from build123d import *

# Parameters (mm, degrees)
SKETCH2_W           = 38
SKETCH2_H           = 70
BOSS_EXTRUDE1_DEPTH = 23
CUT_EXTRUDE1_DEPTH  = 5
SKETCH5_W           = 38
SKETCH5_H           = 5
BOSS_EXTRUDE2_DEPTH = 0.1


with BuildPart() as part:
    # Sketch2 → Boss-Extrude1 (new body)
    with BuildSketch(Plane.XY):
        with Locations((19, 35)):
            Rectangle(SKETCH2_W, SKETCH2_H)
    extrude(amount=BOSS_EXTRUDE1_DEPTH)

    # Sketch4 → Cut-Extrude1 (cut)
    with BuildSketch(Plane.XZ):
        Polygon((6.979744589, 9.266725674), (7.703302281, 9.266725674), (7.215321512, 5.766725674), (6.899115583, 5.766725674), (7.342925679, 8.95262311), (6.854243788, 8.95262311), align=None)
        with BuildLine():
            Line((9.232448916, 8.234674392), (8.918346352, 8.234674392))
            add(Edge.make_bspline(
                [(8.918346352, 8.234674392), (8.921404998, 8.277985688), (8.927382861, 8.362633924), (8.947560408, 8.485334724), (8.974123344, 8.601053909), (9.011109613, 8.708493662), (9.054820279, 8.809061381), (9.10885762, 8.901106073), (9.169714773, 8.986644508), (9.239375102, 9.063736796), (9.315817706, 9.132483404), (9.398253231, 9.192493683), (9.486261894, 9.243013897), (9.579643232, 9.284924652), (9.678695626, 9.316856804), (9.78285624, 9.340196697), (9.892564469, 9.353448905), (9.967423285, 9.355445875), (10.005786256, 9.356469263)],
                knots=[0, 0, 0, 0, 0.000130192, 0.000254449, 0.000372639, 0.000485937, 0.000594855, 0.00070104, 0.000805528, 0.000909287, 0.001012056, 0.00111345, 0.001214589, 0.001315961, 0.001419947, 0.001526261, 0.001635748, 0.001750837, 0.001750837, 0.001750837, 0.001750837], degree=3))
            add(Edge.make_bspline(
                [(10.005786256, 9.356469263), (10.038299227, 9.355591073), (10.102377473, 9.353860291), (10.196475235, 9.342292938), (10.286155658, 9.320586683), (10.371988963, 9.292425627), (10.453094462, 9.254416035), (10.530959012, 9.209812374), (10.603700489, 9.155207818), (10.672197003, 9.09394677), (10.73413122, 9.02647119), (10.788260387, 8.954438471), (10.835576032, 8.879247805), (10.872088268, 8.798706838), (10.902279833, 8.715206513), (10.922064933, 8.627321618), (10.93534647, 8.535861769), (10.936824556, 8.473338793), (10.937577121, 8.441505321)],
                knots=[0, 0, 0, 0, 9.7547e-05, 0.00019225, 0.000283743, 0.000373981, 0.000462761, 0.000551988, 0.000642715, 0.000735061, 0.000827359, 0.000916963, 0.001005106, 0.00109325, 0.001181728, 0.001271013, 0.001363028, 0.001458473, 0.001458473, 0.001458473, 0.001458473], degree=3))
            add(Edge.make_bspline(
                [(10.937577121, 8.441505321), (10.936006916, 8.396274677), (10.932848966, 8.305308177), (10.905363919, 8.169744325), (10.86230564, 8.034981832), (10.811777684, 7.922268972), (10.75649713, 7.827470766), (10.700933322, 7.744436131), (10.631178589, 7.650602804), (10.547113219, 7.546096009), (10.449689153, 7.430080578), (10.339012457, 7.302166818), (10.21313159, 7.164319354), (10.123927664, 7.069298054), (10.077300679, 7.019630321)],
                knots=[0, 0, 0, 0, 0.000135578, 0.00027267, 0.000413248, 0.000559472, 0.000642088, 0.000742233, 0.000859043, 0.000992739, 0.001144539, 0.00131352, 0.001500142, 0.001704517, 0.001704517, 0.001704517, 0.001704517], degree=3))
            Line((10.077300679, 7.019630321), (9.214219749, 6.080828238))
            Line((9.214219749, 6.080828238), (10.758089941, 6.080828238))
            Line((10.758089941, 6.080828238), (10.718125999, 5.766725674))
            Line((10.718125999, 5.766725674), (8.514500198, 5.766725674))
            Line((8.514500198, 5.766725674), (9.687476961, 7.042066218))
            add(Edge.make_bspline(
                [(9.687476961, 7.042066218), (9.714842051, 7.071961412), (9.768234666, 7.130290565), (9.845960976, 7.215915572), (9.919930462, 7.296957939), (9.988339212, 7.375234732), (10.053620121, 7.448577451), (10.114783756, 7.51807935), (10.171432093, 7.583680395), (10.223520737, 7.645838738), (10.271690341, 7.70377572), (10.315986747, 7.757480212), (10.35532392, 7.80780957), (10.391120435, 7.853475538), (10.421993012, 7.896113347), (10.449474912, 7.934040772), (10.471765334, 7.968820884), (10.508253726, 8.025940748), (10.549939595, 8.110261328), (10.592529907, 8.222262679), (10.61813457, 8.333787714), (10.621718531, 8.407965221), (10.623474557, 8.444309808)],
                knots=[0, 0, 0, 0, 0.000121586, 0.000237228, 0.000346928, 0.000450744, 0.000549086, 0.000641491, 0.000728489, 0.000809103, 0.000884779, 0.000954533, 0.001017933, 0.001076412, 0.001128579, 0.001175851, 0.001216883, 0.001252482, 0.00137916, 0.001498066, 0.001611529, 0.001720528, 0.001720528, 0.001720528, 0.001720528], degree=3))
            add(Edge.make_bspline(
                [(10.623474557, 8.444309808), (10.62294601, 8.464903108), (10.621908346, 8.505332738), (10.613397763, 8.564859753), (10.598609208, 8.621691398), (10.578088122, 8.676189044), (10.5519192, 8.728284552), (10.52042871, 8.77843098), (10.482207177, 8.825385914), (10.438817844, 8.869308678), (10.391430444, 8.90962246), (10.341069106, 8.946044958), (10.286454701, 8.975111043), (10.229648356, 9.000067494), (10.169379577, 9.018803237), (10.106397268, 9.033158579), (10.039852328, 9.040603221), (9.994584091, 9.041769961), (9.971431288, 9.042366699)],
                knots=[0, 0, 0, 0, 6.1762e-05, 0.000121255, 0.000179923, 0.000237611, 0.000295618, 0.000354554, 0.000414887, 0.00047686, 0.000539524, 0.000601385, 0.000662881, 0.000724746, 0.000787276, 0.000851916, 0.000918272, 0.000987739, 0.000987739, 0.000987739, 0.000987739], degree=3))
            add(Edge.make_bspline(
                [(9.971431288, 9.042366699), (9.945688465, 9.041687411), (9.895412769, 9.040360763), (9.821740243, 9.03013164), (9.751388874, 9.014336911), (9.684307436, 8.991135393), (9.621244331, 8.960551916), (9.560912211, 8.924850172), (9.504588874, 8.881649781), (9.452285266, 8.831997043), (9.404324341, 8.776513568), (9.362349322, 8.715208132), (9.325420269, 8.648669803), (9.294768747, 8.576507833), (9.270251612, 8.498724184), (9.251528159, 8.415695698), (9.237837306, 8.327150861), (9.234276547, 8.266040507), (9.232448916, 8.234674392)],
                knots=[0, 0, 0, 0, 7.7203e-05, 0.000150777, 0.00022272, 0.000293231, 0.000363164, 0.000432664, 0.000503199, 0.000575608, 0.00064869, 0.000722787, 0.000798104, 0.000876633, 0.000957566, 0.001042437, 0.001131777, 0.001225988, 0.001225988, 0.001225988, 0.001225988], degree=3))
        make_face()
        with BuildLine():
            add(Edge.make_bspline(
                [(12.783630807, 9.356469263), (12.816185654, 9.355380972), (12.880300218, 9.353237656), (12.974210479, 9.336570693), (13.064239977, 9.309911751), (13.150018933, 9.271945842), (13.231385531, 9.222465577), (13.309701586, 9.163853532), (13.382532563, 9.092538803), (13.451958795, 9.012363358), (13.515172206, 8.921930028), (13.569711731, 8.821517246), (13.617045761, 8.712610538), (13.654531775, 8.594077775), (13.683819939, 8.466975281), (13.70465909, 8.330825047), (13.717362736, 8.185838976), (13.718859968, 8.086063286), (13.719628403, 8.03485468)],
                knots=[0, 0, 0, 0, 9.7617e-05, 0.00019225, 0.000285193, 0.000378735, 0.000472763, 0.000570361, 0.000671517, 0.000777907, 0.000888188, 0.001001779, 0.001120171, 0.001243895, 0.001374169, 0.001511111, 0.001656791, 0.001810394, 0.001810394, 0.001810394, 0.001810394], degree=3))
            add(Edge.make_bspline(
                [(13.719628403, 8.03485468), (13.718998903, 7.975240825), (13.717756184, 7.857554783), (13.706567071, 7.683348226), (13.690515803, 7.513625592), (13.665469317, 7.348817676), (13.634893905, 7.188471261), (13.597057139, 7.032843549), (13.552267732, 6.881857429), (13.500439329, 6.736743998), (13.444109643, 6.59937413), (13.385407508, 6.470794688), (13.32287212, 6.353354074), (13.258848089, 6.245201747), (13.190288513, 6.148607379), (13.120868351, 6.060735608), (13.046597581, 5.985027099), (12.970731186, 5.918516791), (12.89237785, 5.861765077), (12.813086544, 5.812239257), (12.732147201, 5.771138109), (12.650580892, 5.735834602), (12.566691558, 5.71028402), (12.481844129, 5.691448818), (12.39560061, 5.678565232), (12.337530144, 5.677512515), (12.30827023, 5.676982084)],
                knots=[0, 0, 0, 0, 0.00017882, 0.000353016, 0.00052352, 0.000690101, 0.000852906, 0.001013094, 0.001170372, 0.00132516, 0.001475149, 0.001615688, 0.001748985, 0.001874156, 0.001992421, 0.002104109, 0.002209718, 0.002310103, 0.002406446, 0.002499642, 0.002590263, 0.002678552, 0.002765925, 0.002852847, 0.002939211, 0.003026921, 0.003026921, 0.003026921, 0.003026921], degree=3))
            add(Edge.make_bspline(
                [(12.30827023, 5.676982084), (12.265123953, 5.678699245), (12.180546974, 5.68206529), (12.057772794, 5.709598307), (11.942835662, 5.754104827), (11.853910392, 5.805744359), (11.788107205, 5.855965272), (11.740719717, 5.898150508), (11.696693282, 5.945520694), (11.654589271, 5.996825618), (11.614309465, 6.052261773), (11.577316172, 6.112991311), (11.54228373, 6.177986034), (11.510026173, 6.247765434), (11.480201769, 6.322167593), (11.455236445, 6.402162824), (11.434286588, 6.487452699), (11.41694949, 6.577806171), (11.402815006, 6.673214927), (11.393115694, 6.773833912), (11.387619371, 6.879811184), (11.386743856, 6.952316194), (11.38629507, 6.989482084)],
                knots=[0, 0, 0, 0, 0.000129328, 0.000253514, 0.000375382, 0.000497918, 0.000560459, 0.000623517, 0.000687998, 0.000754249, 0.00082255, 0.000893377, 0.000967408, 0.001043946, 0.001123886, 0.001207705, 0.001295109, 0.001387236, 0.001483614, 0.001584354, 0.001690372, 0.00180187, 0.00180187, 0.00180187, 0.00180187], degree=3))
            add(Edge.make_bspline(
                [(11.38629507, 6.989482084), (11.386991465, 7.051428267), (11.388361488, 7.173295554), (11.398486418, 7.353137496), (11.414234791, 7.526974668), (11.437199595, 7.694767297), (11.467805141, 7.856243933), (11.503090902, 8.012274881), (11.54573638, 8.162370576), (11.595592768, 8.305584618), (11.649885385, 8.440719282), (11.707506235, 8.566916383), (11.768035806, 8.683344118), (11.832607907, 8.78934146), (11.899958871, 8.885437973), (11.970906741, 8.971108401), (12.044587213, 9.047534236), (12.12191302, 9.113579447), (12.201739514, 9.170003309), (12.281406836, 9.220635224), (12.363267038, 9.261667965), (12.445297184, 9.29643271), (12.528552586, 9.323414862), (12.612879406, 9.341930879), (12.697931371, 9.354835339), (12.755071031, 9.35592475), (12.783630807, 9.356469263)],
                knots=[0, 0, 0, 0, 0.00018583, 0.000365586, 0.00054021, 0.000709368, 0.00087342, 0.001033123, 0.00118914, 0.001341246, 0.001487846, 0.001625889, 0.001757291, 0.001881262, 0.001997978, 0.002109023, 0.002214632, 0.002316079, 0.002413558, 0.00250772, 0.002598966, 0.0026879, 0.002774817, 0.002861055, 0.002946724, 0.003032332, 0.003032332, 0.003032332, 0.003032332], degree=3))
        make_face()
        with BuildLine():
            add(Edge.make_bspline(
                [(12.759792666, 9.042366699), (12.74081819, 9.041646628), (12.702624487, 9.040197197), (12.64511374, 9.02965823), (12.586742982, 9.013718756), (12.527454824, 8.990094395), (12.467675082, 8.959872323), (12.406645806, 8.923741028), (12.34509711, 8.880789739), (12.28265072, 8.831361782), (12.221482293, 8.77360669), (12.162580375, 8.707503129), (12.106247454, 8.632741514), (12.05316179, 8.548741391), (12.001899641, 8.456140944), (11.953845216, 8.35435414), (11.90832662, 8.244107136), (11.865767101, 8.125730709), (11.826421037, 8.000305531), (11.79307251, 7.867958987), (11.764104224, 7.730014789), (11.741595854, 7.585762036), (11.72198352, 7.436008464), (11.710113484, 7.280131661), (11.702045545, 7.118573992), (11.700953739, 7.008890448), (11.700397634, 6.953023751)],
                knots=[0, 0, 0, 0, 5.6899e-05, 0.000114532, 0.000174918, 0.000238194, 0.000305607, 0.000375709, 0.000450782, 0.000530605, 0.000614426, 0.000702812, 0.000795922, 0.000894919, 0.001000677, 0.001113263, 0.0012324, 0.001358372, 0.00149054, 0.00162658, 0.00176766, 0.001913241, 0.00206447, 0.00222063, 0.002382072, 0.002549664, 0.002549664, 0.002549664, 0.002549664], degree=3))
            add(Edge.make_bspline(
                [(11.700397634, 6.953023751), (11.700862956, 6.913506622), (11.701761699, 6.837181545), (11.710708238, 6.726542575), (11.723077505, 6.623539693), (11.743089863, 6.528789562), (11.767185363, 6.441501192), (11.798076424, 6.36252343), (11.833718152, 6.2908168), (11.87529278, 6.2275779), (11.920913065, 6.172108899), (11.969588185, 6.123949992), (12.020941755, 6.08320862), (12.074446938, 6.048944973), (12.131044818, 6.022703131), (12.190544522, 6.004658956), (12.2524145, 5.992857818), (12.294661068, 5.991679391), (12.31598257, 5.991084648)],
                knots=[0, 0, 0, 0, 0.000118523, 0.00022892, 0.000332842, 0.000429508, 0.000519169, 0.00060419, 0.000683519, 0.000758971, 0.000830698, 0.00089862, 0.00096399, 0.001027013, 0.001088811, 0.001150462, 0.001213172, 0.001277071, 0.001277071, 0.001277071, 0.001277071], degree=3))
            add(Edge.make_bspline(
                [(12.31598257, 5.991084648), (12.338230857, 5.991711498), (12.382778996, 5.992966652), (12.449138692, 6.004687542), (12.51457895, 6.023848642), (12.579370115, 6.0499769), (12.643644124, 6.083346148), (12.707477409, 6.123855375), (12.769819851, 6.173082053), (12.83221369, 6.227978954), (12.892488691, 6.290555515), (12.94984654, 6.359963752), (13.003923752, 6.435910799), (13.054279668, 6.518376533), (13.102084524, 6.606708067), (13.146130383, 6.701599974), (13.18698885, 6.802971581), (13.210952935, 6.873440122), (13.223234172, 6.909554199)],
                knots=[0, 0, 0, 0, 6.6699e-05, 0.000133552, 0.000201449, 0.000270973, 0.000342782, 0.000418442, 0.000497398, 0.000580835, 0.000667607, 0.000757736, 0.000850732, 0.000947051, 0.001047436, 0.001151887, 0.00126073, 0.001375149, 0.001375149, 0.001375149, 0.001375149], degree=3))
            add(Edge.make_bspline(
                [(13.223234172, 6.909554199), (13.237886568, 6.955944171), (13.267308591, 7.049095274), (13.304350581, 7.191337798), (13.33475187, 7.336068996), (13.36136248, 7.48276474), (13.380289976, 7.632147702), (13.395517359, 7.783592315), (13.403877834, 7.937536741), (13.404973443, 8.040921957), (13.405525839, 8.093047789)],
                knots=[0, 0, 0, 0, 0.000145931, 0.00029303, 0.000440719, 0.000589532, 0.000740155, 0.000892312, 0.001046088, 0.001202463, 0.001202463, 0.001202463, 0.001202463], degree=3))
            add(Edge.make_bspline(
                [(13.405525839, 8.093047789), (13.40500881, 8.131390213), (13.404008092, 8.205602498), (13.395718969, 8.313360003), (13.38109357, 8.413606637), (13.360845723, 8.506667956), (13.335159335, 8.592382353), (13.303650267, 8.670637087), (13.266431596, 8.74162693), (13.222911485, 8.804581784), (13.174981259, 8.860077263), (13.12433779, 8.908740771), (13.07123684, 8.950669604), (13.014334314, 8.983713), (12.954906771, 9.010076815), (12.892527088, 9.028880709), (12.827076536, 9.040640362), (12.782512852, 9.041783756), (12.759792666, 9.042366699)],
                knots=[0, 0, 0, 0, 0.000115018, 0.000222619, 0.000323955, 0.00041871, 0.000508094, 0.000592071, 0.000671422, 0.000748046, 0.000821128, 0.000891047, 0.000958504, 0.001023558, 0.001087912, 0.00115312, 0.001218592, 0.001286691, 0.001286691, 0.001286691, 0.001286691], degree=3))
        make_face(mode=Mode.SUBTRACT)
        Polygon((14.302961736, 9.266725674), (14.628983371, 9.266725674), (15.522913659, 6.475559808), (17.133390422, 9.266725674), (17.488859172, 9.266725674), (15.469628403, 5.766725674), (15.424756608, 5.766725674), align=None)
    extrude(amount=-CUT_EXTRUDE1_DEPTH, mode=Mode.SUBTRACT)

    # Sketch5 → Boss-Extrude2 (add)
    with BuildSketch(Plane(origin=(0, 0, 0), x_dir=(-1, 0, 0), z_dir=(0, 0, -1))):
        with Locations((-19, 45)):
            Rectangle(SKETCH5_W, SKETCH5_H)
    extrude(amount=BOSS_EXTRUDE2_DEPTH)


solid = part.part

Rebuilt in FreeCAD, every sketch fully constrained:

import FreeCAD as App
import Part
import Sketcher

V = App.Vector
Q = App.Units.Quantity

doc = App.newDocument("Part")
body = doc.addObject("PartDesign::Body", "Body")

# Sketch on XY plane
sketch1 = body.newObject("Sketcher::SketchObject", "Sketch")
sketch1.AttachmentSupport = (doc.getObject("XY_Plane"), [""])
sketch1.MapMode = "FlatFace"
sketch1.addGeometry(Part.LineSegment(V(0, 70, 0), V(0, 0, 0)), False)
sketch1.addGeometry(Part.LineSegment(V(0, 0, 0), V(38, 0, 0)), False)
sketch1.addGeometry(Part.LineSegment(V(38, 0, 0), V(38, 70, 0)), False)
sketch1.addGeometry(Part.LineSegment(V(38, 70, 0), V(0, 70, 0)), False)
sketch1.addConstraint(Sketcher.Constraint("Coincident", 0, 2, 1, 1))
sketch1.addConstraint(Sketcher.Constraint("Coincident", 1, 2, 2, 1))
sketch1.addConstraint(Sketcher.Constraint("Coincident", 2, 2, 3, 1))
sketch1.addConstraint(Sketcher.Constraint("Coincident", 3, 2, 0, 1))
sketch1.addConstraint(Sketcher.Constraint("Vertical", 0))
sketch1.addConstraint(Sketcher.Constraint("Horizontal", 1))
sketch1.addConstraint(Sketcher.Constraint("Vertical", 2))
sketch1.addConstraint(Sketcher.Constraint("Horizontal", 3))
sketch1.addConstraint(Sketcher.Constraint("Coincident", 0, 2, -1, 1))
sketch1.addConstraint(Sketcher.Constraint("DistanceX", 1, 1, 1, 2, Q("38 mm")))
sketch1.addConstraint(Sketcher.Constraint("DistanceY", 0, 2, 0, 1, Q("70 mm")))
pad1 = body.newObject("PartDesign::Pad", "Pad")
pad1.Profile = sketch1
pad1.Length = 23

# Sketch on XZ plane
sketch2 = body.newObject("Sketcher::SketchObject", "Sketch001")
sketch2.AttachmentSupport = (doc.getObject("XZ_Plane"), [""])
sketch2.MapMode = "FlatFace"
sketch2.addGeometry(Part.LineSegment(V(7.703302, 9.266726, 0), V(6.979745, 9.266726, 0)), False)
sketch2.addGeometry(Part.LineSegment(V(6.979745, 9.266726, 0), V(6.854244, 8.952623, 0)), False)
sketch2.addGeometry(Part.LineSegment(V(6.854244, 8.952623, 0), V(7.342926, 8.952623, 0)), False)
sketch2.addGeometry(Part.LineSegment(V(7.342926, 8.952623, 0), V(6.899116, 5.766726, 0)), False)
sketch2.addGeometry(Part.LineSegment(V(6.899116, 5.766726, 0), V(7.215322, 5.766726, 0)), False)
sketch2.addGeometry(Part.LineSegment(V(7.215322, 5.766726, 0), V(7.703302, 9.266726, 0)), False)
sketch2.addGeometry(Part.LineSegment(V(8.918346, 8.234674, 0), V(9.232449, 8.234674, 0)), False)
sketch2.addGeometry(Part.BSplineCurve([V(9.971431, 9.042367, 0), V(9.945688, 9.041687, 0), V(9.895413, 9.040361, 0), V(9.82174, 9.030132, 0), V(9.751389, 9.014337, 0), V(9.684307, 8.991135, 0), V(9.621244, 8.960552, 0), V(9.560912, 8.92485, 0), V(9.504589, 8.88165, 0), V(9.452285, 8.831997, 0), V(9.404324, 8.776514, 0), V(9.362349, 8.715208, 0), V(9.32542, 8.64867, 0), V(9.294769, 8.576508, 0), V(9.270252, 8.498724, 0), V(9.251528, 8.415696, 0), V(9.237837, 8.327151, 0), V(9.234277, 8.266041, 0), V(9.232449, 8.234674, 0)], [4, 1, 1, 1, 1, 1, 1, 1, 1, 1, 1, 1, 1, 1, 1, 1, 4], [0, 0.000077203, 0.000150777, 0.00022272, 0.000293231, 0.000363164, 0.000432664, 0.000503199, 0.000575608, 0.00064869, 0.000722787, 0.000798104, 0.000876633, 0.000957566, 0.001042437, 0.001131777, 0.001225988], False, 3, [1, 1, 1, 1, 1, 1, 1, 1, 1, 1, 1, 1, 1, 1, 1, 1, 1, 1, 1], False), False)
sketch2.addGeometry(Part.BSplineCurve([V(10.623475, 8.44431, 0), V(10.622946, 8.464903, 0), V(10.621908, 8.505333, 0), V(10.613398, 8.56486, 0), V(10.598609, 8.621691, 0), V(10.578088, 8.676189, 0), V(10.551919, 8.728285, 0), V(10.520429, 8.778431, 0), V(10.482207, 8.825386, 0), V(10.438818, 8.869309, 0), V(10.39143, 8.909622, 0), V(10.341069, 8.946045, 0), V(10.286455, 8.975111, 0), V(10.229648, 9.000067, 0), V(10.16938, 9.018803, 0), V(10.106397, 9.033159, 0), V(10.039852, 9.040603, 0), V(9.994584, 9.04177, 0), V(9.971431, 9.042367, 0)], [4, 1, 1, 1, 1, 1, 1, 1, 1, 1, 1, 1, 1, 1, 1, 1, 4], [0, 0.000061762, 0.000121255, 0.000179923, 0.000237611, 0.000295618, 0.000354554, 0.000414887, 0.00047686, 0.000539524, 0.000601385, 0.000662881, 0.000724746, 0.000787276, 0.000851916, 0.000918272, 0.000987739], False, 3, [1, 1, 1, 1, 1, 1, 1, 1, 1, 1, 1, 1, 1, 1, 1, 1, 1, 1, 1], False), False)
sketch2.addGeometry(Part.BSplineCurve([V(9.687477, 7.042066, 0), V(9.714842, 7.071961, 0), V(9.768235, 7.130291, 0), V(9.845961, 7.215916, 0), V(9.91993, 7.296958, 0), V(9.988339, 7.375235, 0), V(10.05362, 7.448577, 0), V(10.114784, 7.518079, 0), V(10.171432, 7.58368, 0), V(10.223521, 7.645839, 0), V(10.27169, 7.703776, 0), V(10.315987, 7.75748, 0), V(10.355324, 7.80781, 0), V(10.39112, 7.853476, 0), V(10.421993, 7.896113, 0), V(10.449475, 7.934041, 0), V(10.471765, 7.968821, 0), V(10.508254, 8.025941, 0), V(10.54994, 8.110261, 0), V(10.59253, 8.222263, 0), V(10.618135, 8.333788, 0), V(10.621719, 8.407965, 0), V(10.623475, 8.44431, 0)], [4, 1, 1, 1, 1, 1, 1, 1, 1, 1, 1, 1, 1, 1, 1, 1, 1, 1, 1, 1, 4], [0, 0.000121586, 0.000237228, 0.000346928, 0.000450744, 0.000549086, 0.000641491, 0.000728489, 0.000809103, 0.000884779, 0.000954533, 0.001017933, 0.001076412, 0.001128579, 0.001175851, 0.001216883, 0.001252482, 0.00137916, 0.001498066, 0.001611529, 0.001720528], False, 3, [1, 1, 1, 1, 1, 1, 1, 1, 1, 1, 1, 1, 1, 1, 1, 1, 1, 1, 1, 1, 1, 1, 1], False), False)
sketch2.addGeometry(Part.LineSegment(V(9.687477, 7.042066, 0), V(8.5145, 5.766726, 0)), False)
sketch2.addGeometry(Part.LineSegment(V(8.5145, 5.766726, 0), V(10.718126, 5.766726, 0)), False)
sketch2.addGeometry(Part.LineSegment(V(10.718126, 5.766726, 0), V(10.75809, 6.080828, 0)), False)
sketch2.addGeometry(Part.LineSegment(V(10.75809, 6.080828, 0), V(9.21422, 6.080828, 0)), False)
sketch2.addGeometry(Part.LineSegment(V(9.21422, 6.080828, 0), V(10.077301, 7.01963, 0)), False)
sketch2.addGeometry(Part.BSplineCurve([V(10.937577, 8.441505, 0), V(10.936007, 8.396275, 0), V(10.932849, 8.305308, 0), V(10.905364, 8.169744, 0), V(10.862306, 8.034982, 0), V(10.811778, 7.922269, 0), V(10.756497, 7.827471, 0), V(10.700933, 7.744436, 0), V(10.631179, 7.650603, 0), V(10.547113, 7.546096, 0), V(10.449689, 7.430081, 0), V(10.339012, 7.302167, 0), V(10.213132, 7.164319, 0), V(10.123928, 7.069298, 0), V(10.077301, 7.01963, 0)], [4, 1, 1, 1, 1, 1, 1, 1, 1, 1, 1, 1, 4], [0, 0.000135578, 0.00027267, 0.000413248, 0.000559472, 0.000642088, 0.000742233, 0.000859043, 0.000992739, 0.001144539, 0.00131352, 0.001500142, 0.001704517], False, 3, [1, 1, 1, 1, 1, 1, 1, 1, 1, 1, 1, 1, 1, 1, 1], False), False)
sketch2.addGeometry(Part.BSplineCurve([V(10.005786, 9.356469, 0), V(10.038299, 9.355591, 0), V(10.102377, 9.35386, 0), V(10.196475, 9.342293, 0), V(10.286156, 9.320587, 0), V(10.371989, 9.292426, 0), V(10.453094, 9.254416, 0), V(10.530959, 9.209812, 0), V(10.6037, 9.155208, 0), V(10.672197, 9.093947, 0), V(10.734131, 9.026471, 0), V(10.78826, 8.954438, 0), V(10.835576, 8.879248, 0), V(10.872088, 8.798707, 0), V(10.90228, 8.715207, 0), V(10.922065, 8.627322, 0), V(10.935346, 8.535862, 0), V(10.936825, 8.473339, 0), V(10.937577, 8.441505, 0)], [4, 1, 1, 1, 1, 1, 1, 1, 1, 1, 1, 1, 1, 1, 1, 1, 4], [0, 0.000097547, 0.00019225, 0.000283743, 0.000373981, 0.000462761, 0.000551988, 0.000642715, 0.000735061, 0.000827359, 0.000916963, 0.001005106, 0.00109325, 0.001181728, 0.001271013, 0.001363028, 0.001458473], False, 3, [1, 1, 1, 1, 1, 1, 1, 1, 1, 1, 1, 1, 1, 1, 1, 1, 1, 1, 1], False), False)
sketch2.addGeometry(Part.BSplineCurve([V(8.918346, 8.234674, 0), V(8.921405, 8.277986, 0), V(8.927383, 8.362634, 0), V(8.94756, 8.485335, 0), V(8.974123, 8.601054, 0), V(9.01111, 8.708494, 0), V(9.05482, 8.809061, 0), V(9.108858, 8.901106, 0), V(9.169715, 8.986645, 0), V(9.239375, 9.063737, 0), V(9.315818, 9.132483, 0), V(9.398253, 9.192494, 0), V(9.486262, 9.243014, 0), V(9.579643, 9.284925, 0), V(9.678696, 9.316857, 0), V(9.782856, 9.340197, 0), V(9.892564, 9.353449, 0), V(9.967423, 9.355446, 0), V(10.005786, 9.356469, 0)], [4, 1, 1, 1, 1, 1, 1, 1, 1, 1, 1, 1, 1, 1, 1, 1, 4], [0, 0.000130192, 0.000254449, 0.000372639, 0.000485937, 0.000594855, 0.00070104, 0.000805528, 0.000909287, 0.001012056, 0.00111345, 0.001214589, 0.001315961, 0.001419947, 0.001526261, 0.001635748, 0.001750837], False, 3, [1, 1, 1, 1, 1, 1, 1, 1, 1, 1, 1, 1, 1, 1, 1, 1, 1, 1, 1], False), False)
sketch2.addGeometry(Part.BSplineCurve([V(12.783631, 9.356469, 0), V(12.816186, 9.355381, 0), V(12.8803, 9.353238, 0), V(12.97421, 9.336571, 0), V(13.06424, 9.309912, 0), V(13.150019, 9.271946, 0), V(13.231386, 9.222466, 0), V(13.309702, 9.163854, 0), V(13.382533, 9.092539, 0), V(13.451959, 9.012363, 0), V(13.515172, 8.92193, 0), V(13.569712, 8.821517, 0), V(13.617046, 8.712611, 0), V(13.654532, 8.594078, 0), V(13.68382, 8.466975, 0), V(13.704659, 8.330825, 0), V(13.717363, 8.185839, 0), V(13.71886, 8.086063, 0), V(13.719628, 8.034855, 0)], [4, 1, 1, 1, 1, 1, 1, 1, 1, 1, 1, 1, 1, 1, 1, 1, 4], [0, 0.000097617, 0.00019225, 0.000285193, 0.000378735, 0.000472763, 0.000570361, 0.000671517, 0.000777907, 0.000888188, 0.001001779, 0.001120171, 0.001243895, 0.001374169, 0.001511111, 0.001656791, 0.001810394], False, 3, [1, 1, 1, 1, 1, 1, 1, 1, 1, 1, 1, 1, 1, 1, 1, 1, 1, 1, 1], False), False)
sketch2.addGeometry(Part.BSplineCurve([V(11.386295, 6.989482, 0), V(11.386991, 7.051428, 0), V(11.388361, 7.173296, 0), V(11.398486, 7.353137, 0), V(11.414235, 7.526975, 0), V(11.4372, 7.694767, 0), V(11.467805, 7.856244, 0), V(11.503091, 8.012275, 0), V(11.545736, 8.162371, 0), V(11.595593, 8.305585, 0), V(11.649885, 8.440719, 0), V(11.707506, 8.566916, 0), V(11.768036, 8.683344, 0), V(11.832608, 8.789341, 0), V(11.899959, 8.885438, 0), V(11.970907, 8.971108, 0), V(12.044587, 9.047534, 0), V(12.121913, 9.113579, 0), V(12.20174, 9.170003, 0), V(12.281407, 9.220635, 0), V(12.363267, 9.261668, 0), V(12.445297, 9.296433, 0), V(12.528553, 9.323415, 0), V(12.612879, 9.341931, 0), V(12.697931, 9.354835, 0), V(12.755071, 9.355925, 0), V(12.783631, 9.356469, 0)], [4, 1, 1, 1, 1, 1, 1, 1, 1, 1, 1, 1, 1, 1, 1, 1, 1, 1, 1, 1, 1, 1, 1, 1, 4], [0, 0.00018583, 0.000365586, 0.00054021, 0.000709368, 0.00087342, 0.001033123, 0.00118914, 0.001341246, 0.001487846, 0.001625889, 0.001757291, 0.001881262, 0.001997978, 0.002109023, 0.002214632, 0.002316079, 0.002413558, 0.00250772, 0.002598966, 0.0026879, 0.002774817, 0.002861055, 0.002946724, 0.003032332], False, 3, [1, 1, 1, 1, 1, 1, 1, 1, 1, 1, 1, 1, 1, 1, 1, 1, 1, 1, 1, 1, 1, 1, 1, 1, 1, 1, 1], False), False)
sketch2.addGeometry(Part.BSplineCurve([V(12.30827, 5.676982, 0), V(12.265124, 5.678699, 0), V(12.180547, 5.682065, 0), V(12.057773, 5.709598, 0), V(11.942836, 5.754105, 0), V(11.85391, 5.805744, 0), V(11.788107, 5.855965, 0), V(11.74072, 5.898151, 0), V(11.696693, 5.945521, 0), V(11.654589, 5.996826, 0), V(11.614309, 6.052262, 0), V(11.577316, 6.112991, 0), V(11.542284, 6.177986, 0), V(11.510026, 6.247765, 0), V(11.480202, 6.322168, 0), V(11.455236, 6.402163, 0), V(11.434287, 6.487453, 0), V(11.416949, 6.577806, 0), V(11.402815, 6.673215, 0), V(11.393116, 6.773834, 0), V(11.387619, 6.879811, 0), V(11.386744, 6.952316, 0), V(11.386295, 6.989482, 0)], [4, 1, 1, 1, 1, 1, 1, 1, 1, 1, 1, 1, 1, 1, 1, 1, 1, 1, 1, 1, 4], [0, 0.000129328, 0.000253514, 0.000375382, 0.000497918, 0.000560459, 0.000623517, 0.000687998, 0.000754249, 0.00082255, 0.000893377, 0.000967408, 0.001043946, 0.001123886, 0.001207705, 0.001295109, 0.001387236, 0.001483614, 0.001584354, 0.001690372, 0.00180187], False, 3, [1, 1, 1, 1, 1, 1, 1, 1, 1, 1, 1, 1, 1, 1, 1, 1, 1, 1, 1, 1, 1, 1, 1], False), False)
sketch2.addGeometry(Part.BSplineCurve([V(13.719628, 8.034855, 0), V(13.718999, 7.975241, 0), V(13.717756, 7.857555, 0), V(13.706567, 7.683348, 0), V(13.690516, 7.513626, 0), V(13.665469, 7.348818, 0), V(13.634894, 7.188471, 0), V(13.597057, 7.032844, 0), V(13.552268, 6.881857, 0), V(13.500439, 6.736744, 0), V(13.44411, 6.599374, 0), V(13.385408, 6.470795, 0), V(13.322872, 6.353354, 0), V(13.258848, 6.245202, 0), V(13.190289, 6.148607, 0), V(13.120868, 6.060736, 0), V(13.046598, 5.985027, 0), V(12.970731, 5.918517, 0), V(12.892378, 5.861765, 0), V(12.813087, 5.812239, 0), V(12.732147, 5.771138, 0), V(12.650581, 5.735835, 0), V(12.566692, 5.710284, 0), V(12.481844, 5.691449, 0), V(12.395601, 5.678565, 0), V(12.33753, 5.677513, 0), V(12.30827, 5.676982, 0)], [4, 1, 1, 1, 1, 1, 1, 1, 1, 1, 1, 1, 1, 1, 1, 1, 1, 1, 1, 1, 1, 1, 1, 1, 4], [0, 0.00017882, 0.000353016, 0.00052352, 0.000690101, 0.000852906, 0.001013094, 0.001170372, 0.00132516, 0.001475149, 0.001615688, 0.001748985, 0.001874156, 0.001992421, 0.002104109, 0.002209718, 0.002310103, 0.002406446, 0.002499642, 0.002590263, 0.002678552, 0.002765925, 0.002852847, 0.002939211, 0.003026921], False, 3, [1, 1, 1, 1, 1, 1, 1, 1, 1, 1, 1, 1, 1, 1, 1, 1, 1, 1, 1, 1, 1, 1, 1, 1, 1, 1, 1], False), False)
sketch2.addGeometry(Part.BSplineCurve([V(13.405526, 8.093048, 0), V(13.405009, 8.13139, 0), V(13.404008, 8.205602, 0), V(13.395719, 8.31336, 0), V(13.381094, 8.413607, 0), V(13.360846, 8.506668, 0), V(13.335159, 8.592382, 0), V(13.30365, 8.670637, 0), V(13.266432, 8.741627, 0), V(13.222911, 8.804582, 0), V(13.174981, 8.860077, 0), V(13.124338, 8.908741, 0), V(13.071237, 8.95067, 0), V(13.014334, 8.983713, 0), V(12.954907, 9.010077, 0), V(12.892527, 9.028881, 0), V(12.827077, 9.04064, 0), V(12.782513, 9.041784, 0), V(12.759793, 9.042367, 0)], [4, 1, 1, 1, 1, 1, 1, 1, 1, 1, 1, 1, 1, 1, 1, 1, 4], [0, 0.000115018, 0.000222619, 0.000323955, 0.00041871, 0.000508094, 0.000592071, 0.000671422, 0.000748046, 0.000821128, 0.000891047, 0.000958504, 0.001023558, 0.001087912, 0.00115312, 0.001218592, 0.001286691], False, 3, [1, 1, 1, 1, 1, 1, 1, 1, 1, 1, 1, 1, 1, 1, 1, 1, 1, 1, 1], False), False)
sketch2.addGeometry(Part.BSplineCurve([V(13.223234, 6.909554, 0), V(13.237887, 6.955944, 0), V(13.267309, 7.049095, 0), V(13.304351, 7.191338, 0), V(13.334752, 7.336069, 0), V(13.361362, 7.482765, 0), V(13.38029, 7.632148, 0), V(13.395517, 7.783592, 0), V(13.403878, 7.937537, 0), V(13.404973, 8.040922, 0), V(13.405526, 8.093048, 0)], [4, 1, 1, 1, 1, 1, 1, 1, 4], [0, 0.000145931, 0.00029303, 0.000440719, 0.000589532, 0.000740155, 0.000892312, 0.001046088, 0.001202463], False, 3, [1, 1, 1, 1, 1, 1, 1, 1, 1, 1, 1], False), False)
sketch2.addGeometry(Part.BSplineCurve([V(12.315983, 5.991085, 0), V(12.338231, 5.991711, 0), V(12.382779, 5.992967, 0), V(12.449139, 6.004688, 0), V(12.514579, 6.023849, 0), V(12.57937, 6.049977, 0), V(12.643644, 6.083346, 0), V(12.707477, 6.123855, 0), V(12.76982, 6.173082, 0), V(12.832214, 6.227979, 0), V(12.892489, 6.290556, 0), V(12.949847, 6.359964, 0), V(13.003924, 6.435911, 0), V(13.05428, 6.518377, 0), V(13.102085, 6.606708, 0), V(13.14613, 6.7016, 0), V(13.186989, 6.802972, 0), V(13.210953, 6.87344, 0), V(13.223234, 6.909554, 0)], [4, 1, 1, 1, 1, 1, 1, 1, 1, 1, 1, 1, 1, 1, 1, 1, 4], [0, 0.000066699, 0.000133552, 0.000201449, 0.000270973, 0.000342782, 0.000418442, 0.000497398, 0.000580835, 0.000667607, 0.000757736, 0.000850732, 0.000947051, 0.001047436, 0.001151887, 0.00126073, 0.001375149], False, 3, [1, 1, 1, 1, 1, 1, 1, 1, 1, 1, 1, 1, 1, 1, 1, 1, 1, 1, 1], False), False)
sketch2.addGeometry(Part.BSplineCurve([V(11.700398, 6.953024, 0), V(11.700863, 6.913507, 0), V(11.701762, 6.837182, 0), V(11.710708, 6.726543, 0), V(11.723078, 6.62354, 0), V(11.74309, 6.52879, 0), V(11.767185, 6.441501, 0), V(11.798076, 6.362523, 0), V(11.833718, 6.290817, 0), V(11.875293, 6.227578, 0), V(11.920913, 6.172109, 0), V(11.969588, 6.12395, 0), V(12.020942, 6.083209, 0), V(12.074447, 6.048945, 0), V(12.131045, 6.022703, 0), V(12.190545, 6.004659, 0), V(12.252415, 5.992858, 0), V(12.294661, 5.991679, 0), V(12.315983, 5.991085, 0)], [4, 1, 1, 1, 1, 1, 1, 1, 1, 1, 1, 1, 1, 1, 1, 1, 4], [0, 0.000118523, 0.00022892, 0.000332842, 0.000429508, 0.000519169, 0.00060419, 0.000683519, 0.000758971, 0.000830698, 0.00089862, 0.00096399, 0.001027013, 0.001088811, 0.001150462, 0.001213172, 0.001277071], False, 3, [1, 1, 1, 1, 1, 1, 1, 1, 1, 1, 1, 1, 1, 1, 1, 1, 1, 1, 1], False), False)
sketch2.addGeometry(Part.BSplineCurve([V(12.759793, 9.042367, 0), V(12.740818, 9.041647, 0), V(12.702624, 9.040197, 0), V(12.645114, 9.029658, 0), V(12.586743, 9.013719, 0), V(12.527455, 8.990094, 0), V(12.467675, 8.959872, 0), V(12.406646, 8.923741, 0), V(12.345097, 8.88079, 0), V(12.282651, 8.831362, 0), V(12.221482, 8.773607, 0), V(12.16258, 8.707503, 0), V(12.106247, 8.632742, 0), V(12.053162, 8.548741, 0), V(12.0019, 8.456141, 0), V(11.953845, 8.354354, 0), V(11.908327, 8.244107, 0), V(11.865767, 8.125731, 0), V(11.826421, 8.000306, 0), V(11.793073, 7.867959, 0), V(11.764104, 7.730015, 0), V(11.741596, 7.585762, 0), V(11.721984, 7.436008, 0), V(11.710113, 7.280132, 0), V(11.702046, 7.118574, 0), V(11.700954, 7.00889, 0), V(11.700398, 6.953024, 0)], [4, 1, 1, 1, 1, 1, 1, 1, 1, 1, 1, 1, 1, 1, 1, 1, 1, 1, 1, 1, 1, 1, 1, 1, 4], [0, 0.000056899, 0.000114532, 0.000174918, 0.000238194, 0.000305607, 0.000375709, 0.000450782, 0.000530605, 0.000614426, 0.000702812, 0.000795922, 0.000894919, 0.001000677, 0.001113263, 0.0012324, 0.001358372, 0.00149054, 0.00162658, 0.00176766, 0.001913241, 0.00206447, 0.00222063, 0.002382072, 0.002549664], False, 3, [1, 1, 1, 1, 1, 1, 1, 1, 1, 1, 1, 1, 1, 1, 1, 1, 1, 1, 1, 1, 1, 1, 1, 1, 1, 1, 1], False), False)
sketch2.addGeometry(Part.LineSegment(V(14.628983, 9.266726, 0), V(14.302962, 9.266726, 0)), False)
sketch2.addGeometry(Part.LineSegment(V(14.302962, 9.266726, 0), V(15.424757, 5.766726, 0)), False)
sketch2.addGeometry(Part.LineSegment(V(15.424757, 5.766726, 0), V(15.469628, 5.766726, 0)), False)
sketch2.addGeometry(Part.LineSegment(V(15.469628, 5.766726, 0), V(17.488859, 9.266726, 0)), False)
sketch2.addGeometry(Part.LineSegment(V(17.488859, 9.266726, 0), V(17.13339, 9.266726, 0)), False)
sketch2.addGeometry(Part.LineSegment(V(17.13339, 9.266726, 0), V(15.522914, 6.47556, 0)), False)
sketch2.addGeometry(Part.LineSegment(V(15.522914, 6.47556, 0), V(14.628983, 9.266726, 0)), False)
sketch2.addConstraint(Sketcher.Constraint("Block", 7))
sketch2.addConstraint(Sketcher.Constraint("Block", 8))
sketch2.addConstraint(Sketcher.Constraint("Block", 9))
sketch2.addConstraint(Sketcher.Constraint("Block", 15))
sketch2.addConstraint(Sketcher.Constraint("Block", 16))
sketch2.addConstraint(Sketcher.Constraint("Block", 17))
sketch2.addConstraint(Sketcher.Constraint("Block", 18))
sketch2.addConstraint(Sketcher.Constraint("Block", 19))
sketch2.addConstraint(Sketcher.Constraint("Block", 20))
sketch2.addConstraint(Sketcher.Constraint("Block", 21))
sketch2.addConstraint(Sketcher.Constraint("Block", 22))
sketch2.addConstraint(Sketcher.Constraint("Block", 23))
sketch2.addConstraint(Sketcher.Constraint("Block", 24))
sketch2.addConstraint(Sketcher.Constraint("Block", 25))
sketch2.addConstraint(Sketcher.Constraint("Block", 26))
sketch2.addConstraint(Sketcher.Constraint("Coincident", 0, 2, 1, 1))
sketch2.addConstraint(Sketcher.Constraint("Coincident", 1, 2, 2, 1))
sketch2.addConstraint(Sketcher.Constraint("Coincident", 2, 2, 3, 1))
sketch2.addConstraint(Sketcher.Constraint("Coincident", 3, 2, 4, 1))
sketch2.addConstraint(Sketcher.Constraint("Coincident", 4, 2, 5, 1))
sketch2.addConstraint(Sketcher.Constraint("Coincident", 5, 2, 0, 1))
sketch2.addConstraint(Sketcher.Constraint("Coincident", 6, 2, 7, 2))
sketch2.addConstraint(Sketcher.Constraint("Coincident", 9, 1, 10, 1))
sketch2.addConstraint(Sketcher.Constraint("Coincident", 10, 2, 11, 1))
sketch2.addConstraint(Sketcher.Constraint("Coincident", 11, 2, 12, 1))
sketch2.addConstraint(Sketcher.Constraint("Coincident", 12, 2, 13, 1))
sketch2.addConstraint(Sketcher.Constraint("Coincident", 13, 2, 14, 1))
sketch2.addConstraint(Sketcher.Constraint("Coincident", 14, 2, 15, 2))
sketch2.addConstraint(Sketcher.Constraint("Coincident", 17, 1, 6, 1))
sketch2.addConstraint(Sketcher.Constraint("Coincident", 27, 2, 28, 1))
sketch2.addConstraint(Sketcher.Constraint("Coincident", 28, 2, 29, 1))
sketch2.addConstraint(Sketcher.Constraint("Coincident", 29, 2, 30, 1))
sketch2.addConstraint(Sketcher.Constraint("Coincident", 30, 2, 31, 1))
sketch2.addConstraint(Sketcher.Constraint("Coincident", 31, 2, 32, 1))
sketch2.addConstraint(Sketcher.Constraint("Coincident", 32, 2, 33, 1))
sketch2.addConstraint(Sketcher.Constraint("Coincident", 33, 2, 27, 1))
sketch2.addConstraint(Sketcher.Constraint("Horizontal", 0))
sketch2.addConstraint(Sketcher.Constraint("Horizontal", 2))
sketch2.addConstraint(Sketcher.Constraint("Horizontal", 4))
sketch2.addConstraint(Sketcher.Constraint("Horizontal", 11))
sketch2.addConstraint(Sketcher.Constraint("Horizontal", 13))
sketch2.addConstraint(Sketcher.Constraint("Horizontal", 27))
sketch2.addConstraint(Sketcher.Constraint("Horizontal", 29))
sketch2.addConstraint(Sketcher.Constraint("Horizontal", 31))
sketch2.addConstraint(Sketcher.Constraint("Horizontal", 4, 2, 10, 2))
sketch2.addConstraint(Sketcher.Constraint("Horizontal", 5, 2, 27, 2))
sketch2.addConstraint(Sketcher.Constraint("Horizontal", 11, 2, 28, 2))
sketch2.addConstraint(Sketcher.Constraint("Horizontal", 27, 2, 30, 2))
sketch2.addConstraint(Sketcher.Constraint("DistanceY", 3, 2, 0, 2, Q("3.5 mm")))
sketch2.addConstraint(Sketcher.Constraint("DistanceX", 2, 1, 2, 2, Q("0.488682 mm")))
sketch2.addConstraint(Sketcher.Constraint("DistanceX", 13, 2, 13, 1, Q("1.54387 mm")))
sketch2.addConstraint(Sketcher.Constraint("DistanceX", 27, 2, 27, 1, Q("0.326022 mm")))
sketch2.addConstraint(Sketcher.Constraint("DistanceX", 29, 1, 29, 2, Q("0.044872 mm")))
sketch2.addConstraint(Sketcher.Constraint("DistanceX", 31, 2, 31, 1, Q("0.355469 mm")))
sketch2.addConstraint(Sketcher.Constraint("DistanceX", -1, 1, 10, 2, Q("8.5145 mm")))
sketch2.addConstraint(Sketcher.Constraint("DistanceX", 1, 2, 0, 2, Q("0.125501 mm")))
sketch2.addConstraint(Sketcher.Constraint("DistanceX", 4, 2, 13, 2, Q("1.998898 mm")))
sketch2.addConstraint(Sketcher.Constraint("DistanceX", 12, 2, 31, 2, Q("6.3753 mm")))
sketch2.addConstraint(Sketcher.Constraint("Distance", 3, Q("3.216661 mm")))
sketch2.addConstraint(Sketcher.Constraint("Distance", 14, Q("1.275248 mm")))
sketch2.addConstraint(Sketcher.Constraint("Distance", 28, Q("3.675381 mm")))
sketch2.addConstraint(Sketcher.Constraint("Distance", 32, Q("3.222459 mm")))
sketch2.addConstraint(Sketcher.Constraint("DistanceX", 0, 2, 0, 1, Q("0.723558 mm")))
sketch2.addConstraint(Sketcher.Constraint("DistanceX", 4, 1, 4, 2, Q("0.316206 mm")))
sketch2.addConstraint(Sketcher.Constraint("DistanceX", 11, 1, 11, 2, Q("2.203626 mm")))
sketch2.addConstraint(Sketcher.Constraint("DistanceX", -1, 1, 4, 2, Q("7.215322 mm")))
sketch2.addConstraint(Sketcher.Constraint("DistanceX", -1, 1, 27, 2, Q("14.302962 mm")))
sketch2.addConstraint(Sketcher.Constraint("DistanceY", -1, 1, 32, 2, Q("6.47556 mm")))
sketch2.addConstraint(Sketcher.Constraint("DistanceX", 1, 2, 3, 2, Q("0.044872 mm")))
sketch2.addConstraint(Sketcher.Constraint("DistanceY", 6, 2, 5, 2, Q("1.032051 mm")))
pocket1 = body.newObject("PartDesign::Pocket", "Pocket")
pocket1.Profile = sketch2
pocket1.Length = 5

# Sketch on XY plane
sketch3 = body.newObject("Sketcher::SketchObject", "Sketch002")
sketch3.AttachmentSupport = (doc.getObject("XY_Plane"), [""])
sketch3.MapMode = "FlatFace"
sketch3.addGeometry(Part.LineSegment(V(38, 48, 0), V(38, 42, 0)), False)
sketch3.addGeometry(Part.LineSegment(V(38, 42, 0), V(0, 42, 0)), False)
sketch3.addGeometry(Part.LineSegment(V(0, 42, 0), V(0, 48, 0)), False)
sketch3.addGeometry(Part.LineSegment(V(0, 48, 0), V(38, 48, 0)), False)
sketch3.addConstraint(Sketcher.Constraint("Coincident", 0, 2, 1, 1))
sketch3.addConstraint(Sketcher.Constraint("Coincident", 1, 2, 2, 1))
sketch3.addConstraint(Sketcher.Constraint("Coincident", 2, 2, 3, 1))
sketch3.addConstraint(Sketcher.Constraint("Coincident", 3, 2, 0, 1))
sketch3.addConstraint(Sketcher.Constraint("Vertical", 0))
sketch3.addConstraint(Sketcher.Constraint("Horizontal", 1))
sketch3.addConstraint(Sketcher.Constraint("Vertical", 2))
sketch3.addConstraint(Sketcher.Constraint("Horizontal", 3))
sketch3.addConstraint(Sketcher.Constraint("PointOnObject", 1, 2, -2))
sketch3.addConstraint(Sketcher.Constraint("DistanceX", 1, 2, 1, 1, Q("38 mm")))
sketch3.addConstraint(Sketcher.Constraint("DistanceY", 0, 2, 0, 1, Q("5 mm")))
sketch3.addConstraint(Sketcher.Constraint("DistanceY", -1, 1, 0, 2, Q("42.5 mm")))
pad2 = body.newObject("PartDesign::Pad", "Pad001")
pad2.Profile = sketch3
pad2.Length = 0.1
pad2.Reversed = True

doc.recompute()
